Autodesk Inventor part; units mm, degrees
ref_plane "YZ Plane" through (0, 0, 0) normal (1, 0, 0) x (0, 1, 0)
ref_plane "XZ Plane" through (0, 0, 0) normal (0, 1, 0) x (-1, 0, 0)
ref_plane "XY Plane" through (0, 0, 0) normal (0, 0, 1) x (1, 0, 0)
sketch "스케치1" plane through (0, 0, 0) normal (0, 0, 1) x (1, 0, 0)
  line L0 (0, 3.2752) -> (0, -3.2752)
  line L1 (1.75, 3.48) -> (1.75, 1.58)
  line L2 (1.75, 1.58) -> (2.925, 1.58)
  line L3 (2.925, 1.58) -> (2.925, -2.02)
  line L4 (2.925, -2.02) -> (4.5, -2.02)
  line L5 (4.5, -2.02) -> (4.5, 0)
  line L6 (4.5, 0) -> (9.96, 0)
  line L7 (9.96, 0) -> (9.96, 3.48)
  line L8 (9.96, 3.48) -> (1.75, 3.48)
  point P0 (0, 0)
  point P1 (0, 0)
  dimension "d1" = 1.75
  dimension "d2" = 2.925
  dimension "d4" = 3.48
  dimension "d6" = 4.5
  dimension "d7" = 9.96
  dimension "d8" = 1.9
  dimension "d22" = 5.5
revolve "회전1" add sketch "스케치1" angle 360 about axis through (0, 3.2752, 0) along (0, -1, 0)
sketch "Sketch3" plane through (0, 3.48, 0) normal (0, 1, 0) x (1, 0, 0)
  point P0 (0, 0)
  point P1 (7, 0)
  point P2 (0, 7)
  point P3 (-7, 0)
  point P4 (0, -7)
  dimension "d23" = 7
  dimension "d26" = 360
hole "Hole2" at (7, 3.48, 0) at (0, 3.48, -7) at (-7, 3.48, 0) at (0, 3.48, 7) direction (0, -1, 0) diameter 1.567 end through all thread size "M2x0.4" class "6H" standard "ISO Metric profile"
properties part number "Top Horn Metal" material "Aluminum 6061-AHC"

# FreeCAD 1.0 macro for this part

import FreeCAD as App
import Part
import Sketcher
Q = App.Units.Quantity

doc = App.newDocument("Part")
body = doc.addObject("PartDesign::Body", "Body")

sketch1 = body.newObject("Sketcher::SketchObject", "Sketch")
sketch1.AttachmentSupport = (doc.getObject("XY_Plane"), [""])
sketch1.MapMode = "FlatFace"
sketch1.addGeometry([
    Part.LineSegment(App.Vector(10, 3.5, 0), App.Vector(1.8, 3.5, 0)),
    Part.LineSegment(App.Vector(1.8, 3.5, 0), App.Vector(1.8, 1.6, 0)),
    Part.LineSegment(App.Vector(1.8, 1.6, 0), App.Vector(2.9, 1.6, 0)),
    Part.LineSegment(App.Vector(2.9, 1.6, 0), App.Vector(2.9, -2, 0)),
    Part.LineSegment(App.Vector(2.9, -2, 0), App.Vector(4.5, -2, 0)),
    Part.LineSegment(App.Vector(4.5, -2, 0), App.Vector(4.5, 0, 0)),
    Part.LineSegment(App.Vector(4.5, 0, 0), App.Vector(10, 0, 0)),
    Part.LineSegment(App.Vector(10, 0, 0), App.Vector(10, 3.5, 0)),
], False)
sketch1.addConstraint([
    Sketcher.Constraint("Coincident", 0, 2, 1, 1),
    Sketcher.Constraint("Coincident", 1, 2, 2, 1),
    Sketcher.Constraint("Coincident", 2, 2, 3, 1),
    Sketcher.Constraint("Coincident", 3, 2, 4, 1),
    Sketcher.Constraint("Coincident", 4, 2, 5, 1),
    Sketcher.Constraint("Coincident", 5, 2, 6, 1),
    Sketcher.Constraint("Coincident", 6, 2, 7, 1),
    Sketcher.Constraint("Coincident", 7, 2, 0, 1),
    Sketcher.Constraint("Horizontal", 0),
    Sketcher.Constraint("Vertical", 1),
    Sketcher.Constraint("Horizontal", 2),
    Sketcher.Constraint("Vertical", 3),
    Sketcher.Constraint("Horizontal", 4),
    Sketcher.Constraint("Vertical", 5),
    Sketcher.Constraint("Horizontal", 6),
    Sketcher.Constraint("Vertical", 7),
    Sketcher.Constraint("PointOnObject", 5, 2, -1),
    Sketcher.Constraint("DistanceY", 7, 1, 7, 2, Q("0.137 in")),
    Sketcher.Constraint("DistanceY", 1, 2, 1, 1, Q("0.0748 in")),
    Sketcher.Constraint("DistanceX", -1, 1, 0, 2, Q("0.0689 in")),
    Sketcher.Constraint("DistanceX", 4, 1, 4, 2, Q("0.062 in")),
    Sketcher.Constraint("DistanceX", -1, 1, 2, 2, 2.925),
    Sketcher.Constraint("DistanceX", -1, 1, 6, 2, 9.96),
    Sketcher.Constraint("DistanceY", 3, 2, 0, 2, 5.5),
])
revolution = body.newObject("PartDesign::Revolution", "Revolution")
revolution.Profile = sketch1
revolution.ReferenceAxis = (sketch1, ["V_Axis"])
revolution.Angle = 360

sketch2 = body.newObject("Sketcher::SketchObject", "Sketch001")
sketch2.AttachmentSupport = (doc.getObject("XZ_Plane"), [""])
sketch2.MapMode = "FlatFace"
sketch2.AttachmentOffset = App.Placement(App.Vector(0, 0, -0.1370079 * 25.4), App.Rotation())
sketch2.addGeometry([
    Part.Circle(App.Vector(7, 0, 0), App.Vector(0, 0, 1), 0.8),
    Part.Circle(App.Vector(0, -7, 0), App.Vector(0, 0, 1), 0.8),
    Part.Circle(App.Vector(-7, 0, 0), App.Vector(0, 0, 1), 0.8),
    Part.Circle(App.Vector(0, 7, 0), App.Vector(0, 0, 1), 0.8),
], False)
sketch2.addConstraint([
    Sketcher.Constraint("Equal", 0, 1),
    Sketcher.Constraint("Equal", 1, 2),
    Sketcher.Constraint("Equal", 2, 3),
    Sketcher.Constraint("Symmetric", 0, 3, 2, 3, -1, 1),
    Sketcher.Constraint("Symmetric", 1, 3, 3, 3, -1, 1),
    Sketcher.Constraint("PointOnObject", 0, 3, -1),
    Sketcher.Constraint("PointOnObject", 1, 3, -2),
    Sketcher.Constraint("Diameter", 0, Q("0.0617 in")),
    Sketcher.Constraint("DistanceX", -1, 1, 0, 3, Q("0.2756 in")),
    Sketcher.Constraint("DistanceY", 1, 3, -1, 1, Q("0.2756 in")),
])
doc.recompute()
hole = body.newObject("PartDesign::Hole", "Hole")
hole.Profile = sketch2
hole.ThreadType = "None"
hole.Diameter = Q("0.0616929 in")
hole.DepthType = "ThroughAll"
hole.Reversed = True

doc.recompute()
